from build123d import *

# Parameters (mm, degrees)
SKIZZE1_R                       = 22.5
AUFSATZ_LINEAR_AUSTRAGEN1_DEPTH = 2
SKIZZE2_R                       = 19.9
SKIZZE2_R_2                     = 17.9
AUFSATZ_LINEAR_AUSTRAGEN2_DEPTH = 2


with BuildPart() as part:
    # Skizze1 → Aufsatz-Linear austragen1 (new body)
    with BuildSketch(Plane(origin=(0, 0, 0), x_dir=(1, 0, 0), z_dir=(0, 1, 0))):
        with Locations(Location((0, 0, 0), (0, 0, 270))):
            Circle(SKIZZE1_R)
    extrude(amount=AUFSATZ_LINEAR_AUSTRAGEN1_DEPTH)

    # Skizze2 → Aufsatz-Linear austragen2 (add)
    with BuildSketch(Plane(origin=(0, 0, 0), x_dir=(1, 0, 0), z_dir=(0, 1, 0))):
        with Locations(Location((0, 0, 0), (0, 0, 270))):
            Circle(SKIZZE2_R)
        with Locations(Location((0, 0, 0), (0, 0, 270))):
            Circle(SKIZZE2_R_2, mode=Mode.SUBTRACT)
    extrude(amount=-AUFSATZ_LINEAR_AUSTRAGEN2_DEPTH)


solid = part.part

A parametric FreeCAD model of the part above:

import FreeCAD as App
import Part
import Sketcher
Q = App.Units.Quantity

doc = App.newDocument("Part")
body = doc.addObject("PartDesign::Body", "Body")

# Sketch on XZ plane
sketch1 = doc.addObject("Sketcher::SketchObject", "Sketch")
body.addObject(sketch1)
sketch1.AttachmentSupport = (doc.XZ_Plane, [""])
sketch1.MapMode = "FlatFace"
sketch1.addGeometry(Part.Circle(App.Vector(0, 0, 0), App.Vector(0, 0, 1), 22), False)
sketch1.addConstraint(Sketcher.Constraint("Coincident", 0, 3, -1, 1))
sketch1.addConstraint(Sketcher.Constraint("Diameter", 0, Q("45 mm")))
pad1 = doc.addObject("PartDesign::Pad", "Pad")
body.addObject(pad1)
pad1.Profile = sketch1
pad1.Length = 2
pad1.Reversed = True

# Sketch on XZ plane
sketch2 = doc.addObject("Sketcher::SketchObject", "Sketch001")
body.addObject(sketch2)
sketch2.AttachmentSupport = (doc.XZ_Plane, [""])
sketch2.MapMode = "FlatFace"
sketch2.addGeometry(Part.Circle(App.Vector(0, 0, 0), App.Vector(0, 0, 1), 20), False)
sketch2.addGeometry(Part.Circle(App.Vector(0, 0, 0), App.Vector(0, 0, 1), 18), False)
sketch2.addConstraint(Sketcher.Constraint("Coincident", 0, 3, -1, 1))
sketch2.addConstraint(Sketcher.Constraint("Coincident", 1, 3, -1, 1))
sketch2.addConstraint(Sketcher.Constraint("Diameter", 0, Q("39.8 mm")))
sketch2.addConstraint(Sketcher.Constraint("Diameter", 1, Q("35.8 mm")))
pad2 = doc.addObject("PartDesign::Pad", "Pad001")
body.addObject(pad2)
pad2.Profile = sketch2
pad2.Length = 2

doc.recompute()
